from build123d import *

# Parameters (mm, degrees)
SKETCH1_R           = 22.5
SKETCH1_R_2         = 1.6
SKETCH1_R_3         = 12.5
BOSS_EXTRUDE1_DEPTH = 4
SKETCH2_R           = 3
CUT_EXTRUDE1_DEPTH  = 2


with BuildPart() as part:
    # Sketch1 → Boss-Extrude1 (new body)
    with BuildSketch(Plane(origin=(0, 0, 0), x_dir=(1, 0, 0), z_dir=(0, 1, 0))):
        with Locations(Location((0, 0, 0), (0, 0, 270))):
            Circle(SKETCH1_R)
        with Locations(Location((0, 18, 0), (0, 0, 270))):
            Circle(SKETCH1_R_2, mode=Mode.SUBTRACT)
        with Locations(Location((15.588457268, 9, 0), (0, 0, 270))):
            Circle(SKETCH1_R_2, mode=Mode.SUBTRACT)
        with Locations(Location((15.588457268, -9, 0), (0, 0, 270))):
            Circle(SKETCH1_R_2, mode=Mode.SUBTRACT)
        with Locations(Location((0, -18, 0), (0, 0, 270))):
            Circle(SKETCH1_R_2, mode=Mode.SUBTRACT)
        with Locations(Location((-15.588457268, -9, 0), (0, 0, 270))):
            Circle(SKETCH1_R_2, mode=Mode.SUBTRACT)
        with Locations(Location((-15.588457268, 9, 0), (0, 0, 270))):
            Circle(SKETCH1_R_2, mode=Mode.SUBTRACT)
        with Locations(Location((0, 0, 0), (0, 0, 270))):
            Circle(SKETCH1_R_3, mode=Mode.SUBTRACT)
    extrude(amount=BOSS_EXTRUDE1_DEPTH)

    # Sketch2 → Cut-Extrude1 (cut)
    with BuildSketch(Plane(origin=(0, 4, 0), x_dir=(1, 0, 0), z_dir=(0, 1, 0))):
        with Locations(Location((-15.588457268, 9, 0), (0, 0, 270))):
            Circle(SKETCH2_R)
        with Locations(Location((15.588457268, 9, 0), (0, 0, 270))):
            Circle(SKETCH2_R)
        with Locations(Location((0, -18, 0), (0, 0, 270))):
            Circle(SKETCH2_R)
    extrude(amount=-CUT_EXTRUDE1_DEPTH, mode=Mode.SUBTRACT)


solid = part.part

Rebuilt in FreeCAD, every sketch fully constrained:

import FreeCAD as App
import Part
import Sketcher

V = App.Vector
Q = App.Units.Quantity

doc = App.newDocument("Part")
body = doc.addObject("PartDesign::Body", "Body")

# Sketch on XZ plane
sketch1 = body.newObject("Sketcher::SketchObject", "Sketch")
sketch1.AttachmentSupport = (doc.getObject("XZ_Plane"), [""])
sketch1.MapMode = "FlatFace"
sketch1.addGeometry(Part.Circle(V(0, 0, 0), V(0, 0, 1), 22.5), False)
sketch1.addGeometry(Part.Circle(V(-15.6, -9, 0), V(0, 0, 1), 1.6), False)
sketch1.addGeometry(Part.Circle(V(0, -18, 0), V(0, 0, 1), 1.6), False)
sketch1.addGeometry(Part.Circle(V(-15.6, 9, 0), V(0, 0, 1), 1.6), False)
sketch1.addGeometry(Part.Circle(V(15.6, -9, 0), V(0, 0, 1), 1.6), False)
sketch1.addGeometry(Part.Circle(V(0, 0, 0), V(0, 0, 1), 12.5), False)
sketch1.addGeometry(Part.Circle(V(0, 18, 0), V(0, 0, 1), 1.6), False)
sketch1.addGeometry(Part.Circle(V(15.6, 9, 0), V(0, 0, 1), 1.6), False)
sketch1.addConstraint(Sketcher.Constraint("Coincident", 0, 3, -1, 1))
sketch1.addConstraint(Sketcher.Constraint("Coincident", 5, 3, -1, 1))
sketch1.addConstraint(Sketcher.Constraint("Equal", 1, 2))
sketch1.addConstraint(Sketcher.Constraint("Equal", 2, 3))
sketch1.addConstraint(Sketcher.Constraint("Equal", 3, 4))
sketch1.addConstraint(Sketcher.Constraint("Equal", 4, 6))
sketch1.addConstraint(Sketcher.Constraint("Equal", 6, 7))
sketch1.addConstraint(Sketcher.Constraint("Symmetric", 3, 3, 4, 3, -1, 1))
sketch1.addConstraint(Sketcher.Constraint("Symmetric", 2, 3, 6, 3, -1, 1))
sketch1.addConstraint(Sketcher.Constraint("Symmetric", 1, 3, 7, 3, -1, 1))
sketch1.addConstraint(Sketcher.Constraint("Symmetric", 1, 3, 4, 3, -2))
sketch1.addConstraint(Sketcher.Constraint("PointOnObject", 2, 3, -2))
sketch1.addConstraint(Sketcher.Constraint("Diameter", 0, Q("45 mm")))
sketch1.addConstraint(Sketcher.Constraint("Diameter", 5, Q("25 mm")))
sketch1.addConstraint(Sketcher.Constraint("Diameter", 1, Q("3.2 mm")))
sketch1.addConstraint(Sketcher.Constraint("DistanceY", 1, 3, -1, 1, Q("9 mm")))
sketch1.addConstraint(Sketcher.Constraint("DistanceY", 2, 3, -1, 1, Q("18 mm")))
sketch1.addConstraint(Sketcher.Constraint("DistanceX", 1, 3, -1, 1, Q("15.588457 mm")))
pad1 = body.newObject("PartDesign::Pad", "Pad")
pad1.Profile = sketch1
pad1.Length = 4
pad1.Reversed = True

# Sketch on XZ plane
sketch2 = body.newObject("Sketcher::SketchObject", "Sketch001")
sketch2.AttachmentSupport = (doc.getObject("XZ_Plane"), [""])
sketch2.MapMode = "FlatFace"
sketch2.AttachmentOffset = App.Placement(V(0, 0, -4), App.Rotation())
sketch2.addGeometry(Part.Circle(V(-15.6, -9, 0), V(0, 0, 1), 3), False)
sketch2.addGeometry(Part.Circle(V(15.6, -9, 0), V(0, 0, 1), 3), False)
sketch2.addGeometry(Part.Circle(V(0, 18, 0), V(0, 0, 1), 3), False)
sketch2.addConstraint(Sketcher.Constraint("Equal", 0, 1))
sketch2.addConstraint(Sketcher.Constraint("Equal", 1, 2))
sketch2.addConstraint(Sketcher.Constraint("Symmetric", 0, 3, 1, 3, -2))
sketch2.addConstraint(Sketcher.Constraint("PointOnObject", 2, 3, -2))
sketch2.addConstraint(Sketcher.Constraint("Diameter", 0, Q("6 mm")))
sketch2.addConstraint(Sketcher.Constraint("DistanceY", 0, 3, -1, 1, Q("9 mm")))
sketch2.addConstraint(Sketcher.Constraint("DistanceY", -1, 1, 2, 3, Q("18 mm")))
sketch2.addConstraint(Sketcher.Constraint("DistanceX", 0, 3, -1, 1, Q("15.588457 mm")))
pocket1 = body.newObject("PartDesign::Pocket", "Pocket")
pocket1.Profile = sketch2
pocket1.Length = 2
pocket1.Reversed = True

doc.recompute()
